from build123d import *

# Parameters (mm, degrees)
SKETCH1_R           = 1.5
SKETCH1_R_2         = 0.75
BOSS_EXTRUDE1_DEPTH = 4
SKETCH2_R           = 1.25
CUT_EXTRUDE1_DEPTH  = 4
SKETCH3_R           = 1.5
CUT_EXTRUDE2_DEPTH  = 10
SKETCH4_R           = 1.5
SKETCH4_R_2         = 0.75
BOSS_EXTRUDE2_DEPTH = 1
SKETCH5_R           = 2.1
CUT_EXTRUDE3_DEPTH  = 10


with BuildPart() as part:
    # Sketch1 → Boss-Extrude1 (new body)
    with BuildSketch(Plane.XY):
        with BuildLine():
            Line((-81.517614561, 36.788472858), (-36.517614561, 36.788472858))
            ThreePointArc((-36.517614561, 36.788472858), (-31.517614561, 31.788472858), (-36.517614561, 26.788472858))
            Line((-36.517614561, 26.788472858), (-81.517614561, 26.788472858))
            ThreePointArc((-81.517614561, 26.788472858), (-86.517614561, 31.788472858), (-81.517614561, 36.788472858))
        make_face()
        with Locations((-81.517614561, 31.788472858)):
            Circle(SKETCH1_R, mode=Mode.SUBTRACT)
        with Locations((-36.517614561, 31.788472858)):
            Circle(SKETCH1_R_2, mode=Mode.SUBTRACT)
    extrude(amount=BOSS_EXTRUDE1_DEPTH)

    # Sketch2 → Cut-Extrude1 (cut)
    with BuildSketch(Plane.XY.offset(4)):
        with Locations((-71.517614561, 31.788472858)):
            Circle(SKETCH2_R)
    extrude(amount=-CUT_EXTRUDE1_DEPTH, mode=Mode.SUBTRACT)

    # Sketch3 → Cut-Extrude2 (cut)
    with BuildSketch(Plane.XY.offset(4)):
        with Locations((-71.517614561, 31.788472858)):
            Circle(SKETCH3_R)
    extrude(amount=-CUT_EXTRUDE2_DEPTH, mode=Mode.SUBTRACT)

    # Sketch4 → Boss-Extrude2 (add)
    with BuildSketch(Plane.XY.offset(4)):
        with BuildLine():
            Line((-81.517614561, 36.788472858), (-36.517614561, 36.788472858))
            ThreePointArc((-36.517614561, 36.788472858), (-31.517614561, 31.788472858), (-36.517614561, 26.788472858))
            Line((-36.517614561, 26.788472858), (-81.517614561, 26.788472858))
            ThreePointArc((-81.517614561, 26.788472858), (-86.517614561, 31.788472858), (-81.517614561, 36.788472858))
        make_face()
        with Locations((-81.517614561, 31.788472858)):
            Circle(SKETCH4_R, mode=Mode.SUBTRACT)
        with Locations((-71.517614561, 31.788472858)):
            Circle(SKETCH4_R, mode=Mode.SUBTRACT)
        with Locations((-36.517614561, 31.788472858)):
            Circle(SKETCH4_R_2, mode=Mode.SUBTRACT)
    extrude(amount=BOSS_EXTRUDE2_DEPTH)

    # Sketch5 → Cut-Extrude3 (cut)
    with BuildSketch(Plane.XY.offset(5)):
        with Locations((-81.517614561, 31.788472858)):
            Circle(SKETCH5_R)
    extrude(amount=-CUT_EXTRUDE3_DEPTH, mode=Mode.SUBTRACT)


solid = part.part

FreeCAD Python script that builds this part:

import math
import FreeCAD as App
import Part
import Sketcher
from FreeCAD import Vector
Q = App.Units.Quantity

doc = App.newDocument("Part")
body = doc.addObject("PartDesign::Body", "Body")

sketch1 = doc.addObject("Sketcher::SketchObject", "Sketch")
body.addObject(sketch1)
sketch1.AttachmentSupport = (doc.XY_Plane, [""])
sketch1.MapMode = "FlatFace"
sketch1.addGeometry([
    Part.LineSegment(Vector(-36.517615, 36.788473, 0), Vector(-81.517615, 36.788473, 0)),
    Part.ArcOfCircle(Part.Circle(Vector(-81.517615, 31.788473, 0), Vector(0, 0, 1), 5), math.radians(90), math.radians(270)),
    Part.LineSegment(Vector(-81.517615, 26.788473, 0), Vector(-36.517615, 26.788473, 0)),
    Part.ArcOfCircle(Part.Circle(Vector(-36.517615, 31.788473, 0), Vector(0, 0, 1), 5), math.radians(-90), math.radians(90)),
    Part.Circle(Vector(-36.517615, 31.788473, 0), Vector(0, 0, 1), 0.75),
    Part.Circle(Vector(-81.517615, 31.788473, 0), Vector(0, 0, 1), 1.5),
], False)
sketch1.addConstraint([
    Sketcher.Constraint("Tangent", 0, 2, 1, 1),
    Sketcher.Constraint("Tangent", 1, 2, 2, 1),
    Sketcher.Constraint("Tangent", 2, 2, 3, 1),
    Sketcher.Constraint("Tangent", 3, 2, 0, 1),
    Sketcher.Constraint("Horizontal", 0),
    Sketcher.Constraint("Horizontal", 2),
    Sketcher.Constraint("Coincident", 4, 3, 3, 3),
    Sketcher.Constraint("Coincident", 5, 3, 1, 3),
    Sketcher.Constraint("Diameter", 5, Q("3 mm")),
    Sketcher.Constraint("Radius", 1, Q("5 mm")),
    Sketcher.Constraint("Diameter", 4, Q("1.5 mm")),
    Sketcher.Constraint("DistanceX", 0, 2, 0, 1, Q("45 mm")),
    Sketcher.Constraint("DistanceX", 1, 3, -1, 1, Q("81.517615 mm")),
    Sketcher.Constraint("DistanceY", -1, 1, 1, 3, Q("31.788473 mm")),
])
pad1 = doc.addObject("PartDesign::Pad", "Pad")
body.addObject(pad1)
pad1.Profile = sketch1
pad1.Length = 4

sketch2 = doc.addObject("Sketcher::SketchObject", "Sketch001")
body.addObject(sketch2)
sketch2.AttachmentSupport = (doc.XY_Plane, [""])
sketch2.MapMode = "FlatFace"
sketch2.AttachmentOffset = App.Placement(Vector(0, 0, 4), App.Rotation())
sketch2.addGeometry(Part.Circle(Vector(-71.517615, 31.788473, 0), Vector(0, 0, 1), 1.25), False)
sketch2.addConstraint([
    Sketcher.Constraint("Diameter", 0, Q("2.5 mm")),
    Sketcher.Constraint("DistanceX", 0, 3, -1, 1, Q("71.517615 mm")),
    Sketcher.Constraint("DistanceY", -1, 1, 0, 3, Q("31.788473 mm")),
])
pocket1 = doc.addObject("PartDesign::Pocket", "Pocket")
body.addObject(pocket1)
pocket1.Profile = sketch2
pocket1.Length = 4

sketch3 = doc.addObject("Sketcher::SketchObject", "Sketch002")
body.addObject(sketch3)
sketch3.AttachmentSupport = (doc.XY_Plane, [""])
sketch3.MapMode = "FlatFace"
sketch3.AttachmentOffset = App.Placement(Vector(0, 0, 4), App.Rotation())
sketch3.addGeometry(Part.Circle(Vector(-71.517615, 31.788473, 0), Vector(0, 0, 1), 1.5), False)
sketch3.addConstraint([
    Sketcher.Constraint("Diameter", 0, Q("3 mm")),
    Sketcher.Constraint("DistanceX", 0, 3, -1, 1, Q("71.517615 mm")),
    Sketcher.Constraint("DistanceY", -1, 1, 0, 3, Q("31.788473 mm")),
])
pocket2 = doc.addObject("PartDesign::Pocket", "Pocket001")
body.addObject(pocket2)
pocket2.Profile = sketch3
pocket2.Length = 10

sketch4 = doc.addObject("Sketcher::SketchObject", "Sketch003")
body.addObject(sketch4)
sketch4.AttachmentSupport = (doc.XY_Plane, [""])
sketch4.MapMode = "FlatFace"
sketch4.AttachmentOffset = App.Placement(Vector(0, 0, 4), App.Rotation())
sketch4.addGeometry([
    Part.LineSegment(Vector(-36.517615, 36.788473, 0), Vector(-81.517615, 36.788473, 0)),
    Part.ArcOfCircle(Part.Circle(Vector(-81.517615, 31.788473, 0), Vector(0, 0, 1), 5), math.radians(90), math.radians(270)),
    Part.LineSegment(Vector(-81.517615, 26.788473, 0), Vector(-36.517615, 26.788473, 0)),
    Part.ArcOfCircle(Part.Circle(Vector(-36.517615, 31.788473, 0), Vector(0, 0, 1), 5), math.radians(-90), math.radians(90)),
    Part.Circle(Vector(-36.517615, 31.788473, 0), Vector(0, 0, 1), 0.75),
    Part.Circle(Vector(-71.517615, 31.788473, 0), Vector(0, 0, 1), 1.5),
    Part.Circle(Vector(-81.517615, 31.788473, 0), Vector(0, 0, 1), 1.5),
], False)
sketch4.addConstraint([
    Sketcher.Constraint("Tangent", 0, 2, 1, 1),
    Sketcher.Constraint("Tangent", 1, 2, 2, 1),
    Sketcher.Constraint("Tangent", 2, 2, 3, 1),
    Sketcher.Constraint("Tangent", 3, 2, 0, 1),
    Sketcher.Constraint("Horizontal", 0),
    Sketcher.Constraint("Horizontal", 2),
    Sketcher.Constraint("Coincident", 4, 3, 3, 3),
    Sketcher.Constraint("Coincident", 6, 3, 1, 3),
    Sketcher.Constraint("Equal", 5, 6),
    Sketcher.Constraint("Horizontal", 4, 3, 5, 3),
    Sketcher.Constraint("Diameter", 5, Q("3 mm")),
    Sketcher.Constraint("Radius", 1, Q("5 mm")),
    Sketcher.Constraint("Diameter", 4, Q("1.5 mm")),
    Sketcher.Constraint("DistanceX", 0, 2, 0, 1, Q("45 mm")),
    Sketcher.Constraint("DistanceX", 1, 3, 5, 3, Q("10 mm")),
    Sketcher.Constraint("DistanceX", 1, 3, -1, 1, Q("81.517615 mm")),
    Sketcher.Constraint("DistanceY", -1, 1, 1, 3, Q("31.788473 mm")),
])
pad2 = doc.addObject("PartDesign::Pad", "Pad001")
body.addObject(pad2)
pad2.Profile = sketch4
pad2.Length = 1

sketch5 = doc.addObject("Sketcher::SketchObject", "Sketch004")
body.addObject(sketch5)
sketch5.AttachmentSupport = (doc.XY_Plane, [""])
sketch5.MapMode = "FlatFace"
sketch5.AttachmentOffset = App.Placement(Vector(0, 0, 5), App.Rotation())
sketch5.addGeometry(Part.Circle(Vector(-81.517615, 31.788473, 0), Vector(0, 0, 1), 2.1), False)
sketch5.addConstraint([
    Sketcher.Constraint("Diameter", 0, Q("4.2 mm")),
    Sketcher.Constraint("DistanceX", 0, 3, -1, 1, Q("81.517615 mm")),
    Sketcher.Constraint("DistanceY", -1, 1, 0, 3, Q("31.788473 mm")),
])
pocket3 = doc.addObject("PartDesign::Pocket", "Pocket002")
body.addObject(pocket3)
pocket3.Profile = sketch5
pocket3.Length = 10

doc.recompute()
